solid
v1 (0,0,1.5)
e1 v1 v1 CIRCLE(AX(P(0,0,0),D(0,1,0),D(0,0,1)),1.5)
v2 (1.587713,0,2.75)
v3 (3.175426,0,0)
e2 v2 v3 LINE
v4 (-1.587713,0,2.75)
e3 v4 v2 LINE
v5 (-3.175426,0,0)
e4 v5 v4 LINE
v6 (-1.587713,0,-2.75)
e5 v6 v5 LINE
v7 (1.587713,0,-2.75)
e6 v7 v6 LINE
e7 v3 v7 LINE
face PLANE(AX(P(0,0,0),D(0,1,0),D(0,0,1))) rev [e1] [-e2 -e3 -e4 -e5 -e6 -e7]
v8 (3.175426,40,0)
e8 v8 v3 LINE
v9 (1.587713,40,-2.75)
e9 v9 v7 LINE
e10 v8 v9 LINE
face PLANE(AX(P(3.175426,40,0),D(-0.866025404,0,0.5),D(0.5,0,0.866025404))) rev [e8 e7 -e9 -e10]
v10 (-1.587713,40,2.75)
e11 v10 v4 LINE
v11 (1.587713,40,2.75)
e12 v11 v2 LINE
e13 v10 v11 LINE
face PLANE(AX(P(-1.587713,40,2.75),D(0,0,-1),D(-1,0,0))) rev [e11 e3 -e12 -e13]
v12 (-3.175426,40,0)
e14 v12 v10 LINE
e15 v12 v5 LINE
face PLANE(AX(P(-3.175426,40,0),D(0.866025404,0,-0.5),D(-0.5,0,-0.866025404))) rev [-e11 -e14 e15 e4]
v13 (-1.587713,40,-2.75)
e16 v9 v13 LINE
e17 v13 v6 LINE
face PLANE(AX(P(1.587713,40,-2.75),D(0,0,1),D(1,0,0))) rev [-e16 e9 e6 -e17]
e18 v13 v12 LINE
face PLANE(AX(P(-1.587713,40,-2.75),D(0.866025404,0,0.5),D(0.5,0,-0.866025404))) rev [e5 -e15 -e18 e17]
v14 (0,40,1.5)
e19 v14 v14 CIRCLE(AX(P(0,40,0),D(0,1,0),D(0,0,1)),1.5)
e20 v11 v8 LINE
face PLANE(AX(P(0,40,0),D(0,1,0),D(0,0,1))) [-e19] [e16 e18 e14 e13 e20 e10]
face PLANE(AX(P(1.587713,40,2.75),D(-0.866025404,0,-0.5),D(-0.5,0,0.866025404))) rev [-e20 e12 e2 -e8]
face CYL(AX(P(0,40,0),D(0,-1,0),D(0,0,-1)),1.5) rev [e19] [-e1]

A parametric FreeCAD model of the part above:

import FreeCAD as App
import Part
import Sketcher
from FreeCAD import Vector
Q = App.Units.Quantity


def add_polygon(sketch, points):
    """Adds a closed chain of lines whose ends are joined by coincident constraints."""
    first, n = sketch.GeometryCount, len(points)
    for a, b in zip(points, points[1:] + points[:1]):
        sketch.addGeometry(Part.LineSegment(App.Vector(*a, 0), App.Vector(*b, 0)), False)
    for i in range(n):
        sketch.addConstraint(Sketcher.Constraint("Coincident", first + i, 2, first + (i + 1) % n, 1))

doc = App.newDocument("Part")
body = doc.addObject("PartDesign::Body", "Body")

sketch1 = body.newObject("Sketcher::SketchObject", "Sketch")
sketch1.AttachmentSupport = (doc.getObject("XZ_Plane"), [""])
sketch1.MapMode = "FlatFace"
add_polygon(sketch1, [(3.175426, 0), (1.587713, -2.75), (-1.587713, -2.75), (-3.175426, 0), (-1.587713, 2.75), (1.587713, 2.75)])
sketch1.addGeometry(Part.Circle(Vector(0, 0, 0), Vector(0, 0, 1), 1.5), False)
sketch1.addConstraint([
    Sketcher.Constraint("Horizontal", 1),
    Sketcher.Constraint("Horizontal", 4),
    Sketcher.Constraint("Coincident", 6, 3, -1, 1),
    Sketcher.Constraint("Symmetric", 0, 2, 3, 2, -1, 1),
    Sketcher.Constraint("Symmetric", 2, 2, 5, 2, -1, 1),
    Sketcher.Constraint("PointOnObject", 2, 2, -1),
    Sketcher.Constraint("Parallel", 2, 5),
    Sketcher.Constraint("Vertical", 1, 2, 3, 2),
    Sketcher.Constraint("Diameter", 6, 3.0),
    Sketcher.Constraint("Angle", 0, Q("-120 deg")),
    Sketcher.Constraint("DistanceY", 1, 2, 3, 2, 5.5),
    Sketcher.Constraint("DistanceX", 1, 2, 1, 1, 3.175426),
])
pad1 = body.newObject("PartDesign::Pad", "Pad")
pad1.Profile = sketch1
pad1.Length = 40
pad1.Reversed = True

doc.recompute()
